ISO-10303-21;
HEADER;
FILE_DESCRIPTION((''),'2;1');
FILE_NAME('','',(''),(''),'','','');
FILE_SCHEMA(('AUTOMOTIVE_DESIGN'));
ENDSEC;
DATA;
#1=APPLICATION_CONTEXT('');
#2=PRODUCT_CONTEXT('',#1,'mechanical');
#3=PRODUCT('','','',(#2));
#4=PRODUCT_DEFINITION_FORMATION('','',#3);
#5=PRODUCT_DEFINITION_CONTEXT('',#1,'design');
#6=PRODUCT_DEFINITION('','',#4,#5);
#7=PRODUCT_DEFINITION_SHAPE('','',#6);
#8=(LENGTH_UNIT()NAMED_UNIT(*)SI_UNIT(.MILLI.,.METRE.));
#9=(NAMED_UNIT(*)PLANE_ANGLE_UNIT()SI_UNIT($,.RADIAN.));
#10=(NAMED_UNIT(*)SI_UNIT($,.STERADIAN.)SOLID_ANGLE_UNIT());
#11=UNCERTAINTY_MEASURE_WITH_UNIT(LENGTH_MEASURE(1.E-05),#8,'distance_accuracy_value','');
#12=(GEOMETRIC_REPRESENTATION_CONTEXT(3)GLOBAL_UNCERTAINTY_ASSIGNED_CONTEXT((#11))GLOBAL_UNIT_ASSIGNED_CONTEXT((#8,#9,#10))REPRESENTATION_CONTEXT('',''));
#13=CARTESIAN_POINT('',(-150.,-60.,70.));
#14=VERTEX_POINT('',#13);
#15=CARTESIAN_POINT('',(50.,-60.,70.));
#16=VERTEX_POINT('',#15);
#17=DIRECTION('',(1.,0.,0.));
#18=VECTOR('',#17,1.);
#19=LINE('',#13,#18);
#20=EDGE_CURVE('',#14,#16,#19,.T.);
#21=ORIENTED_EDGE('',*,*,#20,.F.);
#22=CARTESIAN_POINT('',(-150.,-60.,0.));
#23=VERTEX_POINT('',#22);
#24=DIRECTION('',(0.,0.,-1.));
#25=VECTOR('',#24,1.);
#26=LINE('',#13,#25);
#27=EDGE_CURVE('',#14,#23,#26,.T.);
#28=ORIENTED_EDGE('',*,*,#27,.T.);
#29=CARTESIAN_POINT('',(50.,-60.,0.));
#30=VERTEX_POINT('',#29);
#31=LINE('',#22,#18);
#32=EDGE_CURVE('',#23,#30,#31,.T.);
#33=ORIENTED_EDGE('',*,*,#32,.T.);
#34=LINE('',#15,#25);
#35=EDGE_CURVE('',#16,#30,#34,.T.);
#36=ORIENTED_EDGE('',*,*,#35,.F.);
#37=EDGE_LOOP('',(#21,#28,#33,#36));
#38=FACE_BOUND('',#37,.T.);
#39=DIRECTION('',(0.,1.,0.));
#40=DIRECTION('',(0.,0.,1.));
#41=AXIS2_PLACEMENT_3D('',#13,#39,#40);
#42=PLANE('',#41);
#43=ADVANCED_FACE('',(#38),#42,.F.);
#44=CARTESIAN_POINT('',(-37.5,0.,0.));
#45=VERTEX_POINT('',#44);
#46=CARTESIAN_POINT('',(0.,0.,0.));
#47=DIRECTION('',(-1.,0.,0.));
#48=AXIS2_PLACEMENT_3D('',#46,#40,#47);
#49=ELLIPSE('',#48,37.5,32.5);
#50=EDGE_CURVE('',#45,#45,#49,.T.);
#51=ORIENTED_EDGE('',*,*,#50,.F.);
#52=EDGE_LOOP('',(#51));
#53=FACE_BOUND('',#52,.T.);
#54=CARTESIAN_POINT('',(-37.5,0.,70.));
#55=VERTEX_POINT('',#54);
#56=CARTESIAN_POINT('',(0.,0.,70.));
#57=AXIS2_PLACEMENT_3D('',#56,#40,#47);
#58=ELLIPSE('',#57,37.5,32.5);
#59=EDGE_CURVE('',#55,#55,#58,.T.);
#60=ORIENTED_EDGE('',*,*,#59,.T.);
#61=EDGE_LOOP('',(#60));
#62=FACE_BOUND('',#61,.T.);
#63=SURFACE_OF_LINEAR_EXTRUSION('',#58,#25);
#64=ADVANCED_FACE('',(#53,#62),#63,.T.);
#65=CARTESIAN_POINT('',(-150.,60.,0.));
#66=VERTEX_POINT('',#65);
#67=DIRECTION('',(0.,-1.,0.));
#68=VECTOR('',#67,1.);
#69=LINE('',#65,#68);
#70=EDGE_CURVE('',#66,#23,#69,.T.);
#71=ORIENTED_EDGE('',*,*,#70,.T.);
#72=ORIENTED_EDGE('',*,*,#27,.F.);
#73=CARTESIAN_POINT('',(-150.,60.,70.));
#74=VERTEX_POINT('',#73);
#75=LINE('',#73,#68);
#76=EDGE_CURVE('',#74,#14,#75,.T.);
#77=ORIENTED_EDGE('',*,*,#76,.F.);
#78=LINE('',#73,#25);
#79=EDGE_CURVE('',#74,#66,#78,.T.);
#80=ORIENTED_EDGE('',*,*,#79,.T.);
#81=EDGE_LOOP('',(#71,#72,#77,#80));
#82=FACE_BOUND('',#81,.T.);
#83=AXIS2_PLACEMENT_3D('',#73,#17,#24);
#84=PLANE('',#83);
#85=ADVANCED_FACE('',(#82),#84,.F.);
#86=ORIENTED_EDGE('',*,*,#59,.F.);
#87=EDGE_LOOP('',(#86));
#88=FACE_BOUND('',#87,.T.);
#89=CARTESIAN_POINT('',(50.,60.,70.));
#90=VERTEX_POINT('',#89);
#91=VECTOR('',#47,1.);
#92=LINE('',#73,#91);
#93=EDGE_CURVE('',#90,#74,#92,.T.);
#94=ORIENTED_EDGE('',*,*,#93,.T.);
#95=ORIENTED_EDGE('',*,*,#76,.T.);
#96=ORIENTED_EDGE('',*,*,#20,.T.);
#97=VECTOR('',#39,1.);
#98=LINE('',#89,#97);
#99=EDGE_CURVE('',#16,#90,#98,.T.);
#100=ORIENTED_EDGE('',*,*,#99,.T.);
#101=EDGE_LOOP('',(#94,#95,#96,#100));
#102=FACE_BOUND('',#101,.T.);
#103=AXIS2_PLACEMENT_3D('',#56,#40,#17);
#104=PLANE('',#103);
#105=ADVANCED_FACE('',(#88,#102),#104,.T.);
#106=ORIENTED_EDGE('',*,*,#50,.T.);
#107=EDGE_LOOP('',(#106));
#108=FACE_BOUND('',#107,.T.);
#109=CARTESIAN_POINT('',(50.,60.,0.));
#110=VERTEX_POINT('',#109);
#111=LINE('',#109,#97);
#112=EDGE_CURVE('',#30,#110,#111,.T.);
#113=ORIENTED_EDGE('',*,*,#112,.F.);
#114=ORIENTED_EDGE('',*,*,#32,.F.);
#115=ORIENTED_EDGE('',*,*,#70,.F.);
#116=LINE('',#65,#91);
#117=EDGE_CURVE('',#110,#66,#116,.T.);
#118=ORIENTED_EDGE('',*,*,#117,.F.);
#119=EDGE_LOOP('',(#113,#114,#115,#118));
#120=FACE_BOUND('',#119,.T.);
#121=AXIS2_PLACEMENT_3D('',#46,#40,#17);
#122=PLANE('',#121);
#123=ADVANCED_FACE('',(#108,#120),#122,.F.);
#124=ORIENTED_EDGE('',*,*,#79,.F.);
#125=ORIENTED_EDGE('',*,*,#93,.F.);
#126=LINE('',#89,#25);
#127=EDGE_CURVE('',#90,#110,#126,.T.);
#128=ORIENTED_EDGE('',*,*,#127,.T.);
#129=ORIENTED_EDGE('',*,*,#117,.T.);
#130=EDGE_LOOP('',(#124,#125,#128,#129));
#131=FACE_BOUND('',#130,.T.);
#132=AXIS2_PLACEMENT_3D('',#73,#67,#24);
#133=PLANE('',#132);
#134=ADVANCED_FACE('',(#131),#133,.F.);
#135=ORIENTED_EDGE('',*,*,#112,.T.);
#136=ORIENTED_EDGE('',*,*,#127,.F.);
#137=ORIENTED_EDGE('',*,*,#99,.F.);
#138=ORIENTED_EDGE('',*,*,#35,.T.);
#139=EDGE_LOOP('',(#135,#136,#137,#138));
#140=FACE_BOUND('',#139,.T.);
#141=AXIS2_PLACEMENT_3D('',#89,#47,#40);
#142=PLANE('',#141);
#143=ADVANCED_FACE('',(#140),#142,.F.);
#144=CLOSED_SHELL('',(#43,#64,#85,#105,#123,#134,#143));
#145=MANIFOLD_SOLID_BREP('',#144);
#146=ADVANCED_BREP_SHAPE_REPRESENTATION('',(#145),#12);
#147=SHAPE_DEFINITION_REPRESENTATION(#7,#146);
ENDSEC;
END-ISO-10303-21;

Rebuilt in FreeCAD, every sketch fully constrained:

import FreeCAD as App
import Part
import Sketcher
Q = App.Units.Quantity


def add_polygon(sketch, points):
    """Adds a closed chain of lines whose ends are joined by coincident constraints."""
    first, n = sketch.GeometryCount, len(points)
    for a, b in zip(points, points[1:] + points[:1]):
        sketch.addGeometry(Part.LineSegment(App.Vector(*a, 0), App.Vector(*b, 0)), False)
    for i in range(n):
        sketch.addConstraint(Sketcher.Constraint("Coincident", first + i, 2, first + (i + 1) % n, 1))

doc = App.newDocument("Part")
body = doc.addObject("PartDesign::Body", "Body")

sketch1 = body.newObject("Sketcher::SketchObject", "Sketch")
sketch1.AttachmentSupport = (doc.getObject("XY_Plane"), [""])
sketch1.MapMode = "FlatFace"
add_polygon(sketch1, [(-150, 60), (-150, -60), (50, -60), (50, 60)])
sketch1.addGeometry(Part.Ellipse(App.Vector(-37.5, 0, 0), App.Vector(0, -32.5, 0), App.Vector(0, 0, 0)), False)
sketch1.addConstraint([
    Sketcher.Constraint("Block", 4),
    Sketcher.Constraint("Vertical", 0),
    Sketcher.Constraint("Horizontal", 1),
    Sketcher.Constraint("Vertical", 2),
    Sketcher.Constraint("Horizontal", 3),
    Sketcher.Constraint("DistanceX", 1, 1, 1, 2, Q("200 mm")),
    Sketcher.Constraint("DistanceY", 0, 2, 0, 1, Q("120 mm")),
    Sketcher.Constraint("DistanceX", 0, 2, -1, 1, Q("150 mm")),
    Sketcher.Constraint("DistanceY", 0, 2, -1, 1, Q("60 mm")),
])
pad1 = body.newObject("PartDesign::Pad", "Pad")
pad1.Profile = sketch1
pad1.Length = 70

doc.recompute()
